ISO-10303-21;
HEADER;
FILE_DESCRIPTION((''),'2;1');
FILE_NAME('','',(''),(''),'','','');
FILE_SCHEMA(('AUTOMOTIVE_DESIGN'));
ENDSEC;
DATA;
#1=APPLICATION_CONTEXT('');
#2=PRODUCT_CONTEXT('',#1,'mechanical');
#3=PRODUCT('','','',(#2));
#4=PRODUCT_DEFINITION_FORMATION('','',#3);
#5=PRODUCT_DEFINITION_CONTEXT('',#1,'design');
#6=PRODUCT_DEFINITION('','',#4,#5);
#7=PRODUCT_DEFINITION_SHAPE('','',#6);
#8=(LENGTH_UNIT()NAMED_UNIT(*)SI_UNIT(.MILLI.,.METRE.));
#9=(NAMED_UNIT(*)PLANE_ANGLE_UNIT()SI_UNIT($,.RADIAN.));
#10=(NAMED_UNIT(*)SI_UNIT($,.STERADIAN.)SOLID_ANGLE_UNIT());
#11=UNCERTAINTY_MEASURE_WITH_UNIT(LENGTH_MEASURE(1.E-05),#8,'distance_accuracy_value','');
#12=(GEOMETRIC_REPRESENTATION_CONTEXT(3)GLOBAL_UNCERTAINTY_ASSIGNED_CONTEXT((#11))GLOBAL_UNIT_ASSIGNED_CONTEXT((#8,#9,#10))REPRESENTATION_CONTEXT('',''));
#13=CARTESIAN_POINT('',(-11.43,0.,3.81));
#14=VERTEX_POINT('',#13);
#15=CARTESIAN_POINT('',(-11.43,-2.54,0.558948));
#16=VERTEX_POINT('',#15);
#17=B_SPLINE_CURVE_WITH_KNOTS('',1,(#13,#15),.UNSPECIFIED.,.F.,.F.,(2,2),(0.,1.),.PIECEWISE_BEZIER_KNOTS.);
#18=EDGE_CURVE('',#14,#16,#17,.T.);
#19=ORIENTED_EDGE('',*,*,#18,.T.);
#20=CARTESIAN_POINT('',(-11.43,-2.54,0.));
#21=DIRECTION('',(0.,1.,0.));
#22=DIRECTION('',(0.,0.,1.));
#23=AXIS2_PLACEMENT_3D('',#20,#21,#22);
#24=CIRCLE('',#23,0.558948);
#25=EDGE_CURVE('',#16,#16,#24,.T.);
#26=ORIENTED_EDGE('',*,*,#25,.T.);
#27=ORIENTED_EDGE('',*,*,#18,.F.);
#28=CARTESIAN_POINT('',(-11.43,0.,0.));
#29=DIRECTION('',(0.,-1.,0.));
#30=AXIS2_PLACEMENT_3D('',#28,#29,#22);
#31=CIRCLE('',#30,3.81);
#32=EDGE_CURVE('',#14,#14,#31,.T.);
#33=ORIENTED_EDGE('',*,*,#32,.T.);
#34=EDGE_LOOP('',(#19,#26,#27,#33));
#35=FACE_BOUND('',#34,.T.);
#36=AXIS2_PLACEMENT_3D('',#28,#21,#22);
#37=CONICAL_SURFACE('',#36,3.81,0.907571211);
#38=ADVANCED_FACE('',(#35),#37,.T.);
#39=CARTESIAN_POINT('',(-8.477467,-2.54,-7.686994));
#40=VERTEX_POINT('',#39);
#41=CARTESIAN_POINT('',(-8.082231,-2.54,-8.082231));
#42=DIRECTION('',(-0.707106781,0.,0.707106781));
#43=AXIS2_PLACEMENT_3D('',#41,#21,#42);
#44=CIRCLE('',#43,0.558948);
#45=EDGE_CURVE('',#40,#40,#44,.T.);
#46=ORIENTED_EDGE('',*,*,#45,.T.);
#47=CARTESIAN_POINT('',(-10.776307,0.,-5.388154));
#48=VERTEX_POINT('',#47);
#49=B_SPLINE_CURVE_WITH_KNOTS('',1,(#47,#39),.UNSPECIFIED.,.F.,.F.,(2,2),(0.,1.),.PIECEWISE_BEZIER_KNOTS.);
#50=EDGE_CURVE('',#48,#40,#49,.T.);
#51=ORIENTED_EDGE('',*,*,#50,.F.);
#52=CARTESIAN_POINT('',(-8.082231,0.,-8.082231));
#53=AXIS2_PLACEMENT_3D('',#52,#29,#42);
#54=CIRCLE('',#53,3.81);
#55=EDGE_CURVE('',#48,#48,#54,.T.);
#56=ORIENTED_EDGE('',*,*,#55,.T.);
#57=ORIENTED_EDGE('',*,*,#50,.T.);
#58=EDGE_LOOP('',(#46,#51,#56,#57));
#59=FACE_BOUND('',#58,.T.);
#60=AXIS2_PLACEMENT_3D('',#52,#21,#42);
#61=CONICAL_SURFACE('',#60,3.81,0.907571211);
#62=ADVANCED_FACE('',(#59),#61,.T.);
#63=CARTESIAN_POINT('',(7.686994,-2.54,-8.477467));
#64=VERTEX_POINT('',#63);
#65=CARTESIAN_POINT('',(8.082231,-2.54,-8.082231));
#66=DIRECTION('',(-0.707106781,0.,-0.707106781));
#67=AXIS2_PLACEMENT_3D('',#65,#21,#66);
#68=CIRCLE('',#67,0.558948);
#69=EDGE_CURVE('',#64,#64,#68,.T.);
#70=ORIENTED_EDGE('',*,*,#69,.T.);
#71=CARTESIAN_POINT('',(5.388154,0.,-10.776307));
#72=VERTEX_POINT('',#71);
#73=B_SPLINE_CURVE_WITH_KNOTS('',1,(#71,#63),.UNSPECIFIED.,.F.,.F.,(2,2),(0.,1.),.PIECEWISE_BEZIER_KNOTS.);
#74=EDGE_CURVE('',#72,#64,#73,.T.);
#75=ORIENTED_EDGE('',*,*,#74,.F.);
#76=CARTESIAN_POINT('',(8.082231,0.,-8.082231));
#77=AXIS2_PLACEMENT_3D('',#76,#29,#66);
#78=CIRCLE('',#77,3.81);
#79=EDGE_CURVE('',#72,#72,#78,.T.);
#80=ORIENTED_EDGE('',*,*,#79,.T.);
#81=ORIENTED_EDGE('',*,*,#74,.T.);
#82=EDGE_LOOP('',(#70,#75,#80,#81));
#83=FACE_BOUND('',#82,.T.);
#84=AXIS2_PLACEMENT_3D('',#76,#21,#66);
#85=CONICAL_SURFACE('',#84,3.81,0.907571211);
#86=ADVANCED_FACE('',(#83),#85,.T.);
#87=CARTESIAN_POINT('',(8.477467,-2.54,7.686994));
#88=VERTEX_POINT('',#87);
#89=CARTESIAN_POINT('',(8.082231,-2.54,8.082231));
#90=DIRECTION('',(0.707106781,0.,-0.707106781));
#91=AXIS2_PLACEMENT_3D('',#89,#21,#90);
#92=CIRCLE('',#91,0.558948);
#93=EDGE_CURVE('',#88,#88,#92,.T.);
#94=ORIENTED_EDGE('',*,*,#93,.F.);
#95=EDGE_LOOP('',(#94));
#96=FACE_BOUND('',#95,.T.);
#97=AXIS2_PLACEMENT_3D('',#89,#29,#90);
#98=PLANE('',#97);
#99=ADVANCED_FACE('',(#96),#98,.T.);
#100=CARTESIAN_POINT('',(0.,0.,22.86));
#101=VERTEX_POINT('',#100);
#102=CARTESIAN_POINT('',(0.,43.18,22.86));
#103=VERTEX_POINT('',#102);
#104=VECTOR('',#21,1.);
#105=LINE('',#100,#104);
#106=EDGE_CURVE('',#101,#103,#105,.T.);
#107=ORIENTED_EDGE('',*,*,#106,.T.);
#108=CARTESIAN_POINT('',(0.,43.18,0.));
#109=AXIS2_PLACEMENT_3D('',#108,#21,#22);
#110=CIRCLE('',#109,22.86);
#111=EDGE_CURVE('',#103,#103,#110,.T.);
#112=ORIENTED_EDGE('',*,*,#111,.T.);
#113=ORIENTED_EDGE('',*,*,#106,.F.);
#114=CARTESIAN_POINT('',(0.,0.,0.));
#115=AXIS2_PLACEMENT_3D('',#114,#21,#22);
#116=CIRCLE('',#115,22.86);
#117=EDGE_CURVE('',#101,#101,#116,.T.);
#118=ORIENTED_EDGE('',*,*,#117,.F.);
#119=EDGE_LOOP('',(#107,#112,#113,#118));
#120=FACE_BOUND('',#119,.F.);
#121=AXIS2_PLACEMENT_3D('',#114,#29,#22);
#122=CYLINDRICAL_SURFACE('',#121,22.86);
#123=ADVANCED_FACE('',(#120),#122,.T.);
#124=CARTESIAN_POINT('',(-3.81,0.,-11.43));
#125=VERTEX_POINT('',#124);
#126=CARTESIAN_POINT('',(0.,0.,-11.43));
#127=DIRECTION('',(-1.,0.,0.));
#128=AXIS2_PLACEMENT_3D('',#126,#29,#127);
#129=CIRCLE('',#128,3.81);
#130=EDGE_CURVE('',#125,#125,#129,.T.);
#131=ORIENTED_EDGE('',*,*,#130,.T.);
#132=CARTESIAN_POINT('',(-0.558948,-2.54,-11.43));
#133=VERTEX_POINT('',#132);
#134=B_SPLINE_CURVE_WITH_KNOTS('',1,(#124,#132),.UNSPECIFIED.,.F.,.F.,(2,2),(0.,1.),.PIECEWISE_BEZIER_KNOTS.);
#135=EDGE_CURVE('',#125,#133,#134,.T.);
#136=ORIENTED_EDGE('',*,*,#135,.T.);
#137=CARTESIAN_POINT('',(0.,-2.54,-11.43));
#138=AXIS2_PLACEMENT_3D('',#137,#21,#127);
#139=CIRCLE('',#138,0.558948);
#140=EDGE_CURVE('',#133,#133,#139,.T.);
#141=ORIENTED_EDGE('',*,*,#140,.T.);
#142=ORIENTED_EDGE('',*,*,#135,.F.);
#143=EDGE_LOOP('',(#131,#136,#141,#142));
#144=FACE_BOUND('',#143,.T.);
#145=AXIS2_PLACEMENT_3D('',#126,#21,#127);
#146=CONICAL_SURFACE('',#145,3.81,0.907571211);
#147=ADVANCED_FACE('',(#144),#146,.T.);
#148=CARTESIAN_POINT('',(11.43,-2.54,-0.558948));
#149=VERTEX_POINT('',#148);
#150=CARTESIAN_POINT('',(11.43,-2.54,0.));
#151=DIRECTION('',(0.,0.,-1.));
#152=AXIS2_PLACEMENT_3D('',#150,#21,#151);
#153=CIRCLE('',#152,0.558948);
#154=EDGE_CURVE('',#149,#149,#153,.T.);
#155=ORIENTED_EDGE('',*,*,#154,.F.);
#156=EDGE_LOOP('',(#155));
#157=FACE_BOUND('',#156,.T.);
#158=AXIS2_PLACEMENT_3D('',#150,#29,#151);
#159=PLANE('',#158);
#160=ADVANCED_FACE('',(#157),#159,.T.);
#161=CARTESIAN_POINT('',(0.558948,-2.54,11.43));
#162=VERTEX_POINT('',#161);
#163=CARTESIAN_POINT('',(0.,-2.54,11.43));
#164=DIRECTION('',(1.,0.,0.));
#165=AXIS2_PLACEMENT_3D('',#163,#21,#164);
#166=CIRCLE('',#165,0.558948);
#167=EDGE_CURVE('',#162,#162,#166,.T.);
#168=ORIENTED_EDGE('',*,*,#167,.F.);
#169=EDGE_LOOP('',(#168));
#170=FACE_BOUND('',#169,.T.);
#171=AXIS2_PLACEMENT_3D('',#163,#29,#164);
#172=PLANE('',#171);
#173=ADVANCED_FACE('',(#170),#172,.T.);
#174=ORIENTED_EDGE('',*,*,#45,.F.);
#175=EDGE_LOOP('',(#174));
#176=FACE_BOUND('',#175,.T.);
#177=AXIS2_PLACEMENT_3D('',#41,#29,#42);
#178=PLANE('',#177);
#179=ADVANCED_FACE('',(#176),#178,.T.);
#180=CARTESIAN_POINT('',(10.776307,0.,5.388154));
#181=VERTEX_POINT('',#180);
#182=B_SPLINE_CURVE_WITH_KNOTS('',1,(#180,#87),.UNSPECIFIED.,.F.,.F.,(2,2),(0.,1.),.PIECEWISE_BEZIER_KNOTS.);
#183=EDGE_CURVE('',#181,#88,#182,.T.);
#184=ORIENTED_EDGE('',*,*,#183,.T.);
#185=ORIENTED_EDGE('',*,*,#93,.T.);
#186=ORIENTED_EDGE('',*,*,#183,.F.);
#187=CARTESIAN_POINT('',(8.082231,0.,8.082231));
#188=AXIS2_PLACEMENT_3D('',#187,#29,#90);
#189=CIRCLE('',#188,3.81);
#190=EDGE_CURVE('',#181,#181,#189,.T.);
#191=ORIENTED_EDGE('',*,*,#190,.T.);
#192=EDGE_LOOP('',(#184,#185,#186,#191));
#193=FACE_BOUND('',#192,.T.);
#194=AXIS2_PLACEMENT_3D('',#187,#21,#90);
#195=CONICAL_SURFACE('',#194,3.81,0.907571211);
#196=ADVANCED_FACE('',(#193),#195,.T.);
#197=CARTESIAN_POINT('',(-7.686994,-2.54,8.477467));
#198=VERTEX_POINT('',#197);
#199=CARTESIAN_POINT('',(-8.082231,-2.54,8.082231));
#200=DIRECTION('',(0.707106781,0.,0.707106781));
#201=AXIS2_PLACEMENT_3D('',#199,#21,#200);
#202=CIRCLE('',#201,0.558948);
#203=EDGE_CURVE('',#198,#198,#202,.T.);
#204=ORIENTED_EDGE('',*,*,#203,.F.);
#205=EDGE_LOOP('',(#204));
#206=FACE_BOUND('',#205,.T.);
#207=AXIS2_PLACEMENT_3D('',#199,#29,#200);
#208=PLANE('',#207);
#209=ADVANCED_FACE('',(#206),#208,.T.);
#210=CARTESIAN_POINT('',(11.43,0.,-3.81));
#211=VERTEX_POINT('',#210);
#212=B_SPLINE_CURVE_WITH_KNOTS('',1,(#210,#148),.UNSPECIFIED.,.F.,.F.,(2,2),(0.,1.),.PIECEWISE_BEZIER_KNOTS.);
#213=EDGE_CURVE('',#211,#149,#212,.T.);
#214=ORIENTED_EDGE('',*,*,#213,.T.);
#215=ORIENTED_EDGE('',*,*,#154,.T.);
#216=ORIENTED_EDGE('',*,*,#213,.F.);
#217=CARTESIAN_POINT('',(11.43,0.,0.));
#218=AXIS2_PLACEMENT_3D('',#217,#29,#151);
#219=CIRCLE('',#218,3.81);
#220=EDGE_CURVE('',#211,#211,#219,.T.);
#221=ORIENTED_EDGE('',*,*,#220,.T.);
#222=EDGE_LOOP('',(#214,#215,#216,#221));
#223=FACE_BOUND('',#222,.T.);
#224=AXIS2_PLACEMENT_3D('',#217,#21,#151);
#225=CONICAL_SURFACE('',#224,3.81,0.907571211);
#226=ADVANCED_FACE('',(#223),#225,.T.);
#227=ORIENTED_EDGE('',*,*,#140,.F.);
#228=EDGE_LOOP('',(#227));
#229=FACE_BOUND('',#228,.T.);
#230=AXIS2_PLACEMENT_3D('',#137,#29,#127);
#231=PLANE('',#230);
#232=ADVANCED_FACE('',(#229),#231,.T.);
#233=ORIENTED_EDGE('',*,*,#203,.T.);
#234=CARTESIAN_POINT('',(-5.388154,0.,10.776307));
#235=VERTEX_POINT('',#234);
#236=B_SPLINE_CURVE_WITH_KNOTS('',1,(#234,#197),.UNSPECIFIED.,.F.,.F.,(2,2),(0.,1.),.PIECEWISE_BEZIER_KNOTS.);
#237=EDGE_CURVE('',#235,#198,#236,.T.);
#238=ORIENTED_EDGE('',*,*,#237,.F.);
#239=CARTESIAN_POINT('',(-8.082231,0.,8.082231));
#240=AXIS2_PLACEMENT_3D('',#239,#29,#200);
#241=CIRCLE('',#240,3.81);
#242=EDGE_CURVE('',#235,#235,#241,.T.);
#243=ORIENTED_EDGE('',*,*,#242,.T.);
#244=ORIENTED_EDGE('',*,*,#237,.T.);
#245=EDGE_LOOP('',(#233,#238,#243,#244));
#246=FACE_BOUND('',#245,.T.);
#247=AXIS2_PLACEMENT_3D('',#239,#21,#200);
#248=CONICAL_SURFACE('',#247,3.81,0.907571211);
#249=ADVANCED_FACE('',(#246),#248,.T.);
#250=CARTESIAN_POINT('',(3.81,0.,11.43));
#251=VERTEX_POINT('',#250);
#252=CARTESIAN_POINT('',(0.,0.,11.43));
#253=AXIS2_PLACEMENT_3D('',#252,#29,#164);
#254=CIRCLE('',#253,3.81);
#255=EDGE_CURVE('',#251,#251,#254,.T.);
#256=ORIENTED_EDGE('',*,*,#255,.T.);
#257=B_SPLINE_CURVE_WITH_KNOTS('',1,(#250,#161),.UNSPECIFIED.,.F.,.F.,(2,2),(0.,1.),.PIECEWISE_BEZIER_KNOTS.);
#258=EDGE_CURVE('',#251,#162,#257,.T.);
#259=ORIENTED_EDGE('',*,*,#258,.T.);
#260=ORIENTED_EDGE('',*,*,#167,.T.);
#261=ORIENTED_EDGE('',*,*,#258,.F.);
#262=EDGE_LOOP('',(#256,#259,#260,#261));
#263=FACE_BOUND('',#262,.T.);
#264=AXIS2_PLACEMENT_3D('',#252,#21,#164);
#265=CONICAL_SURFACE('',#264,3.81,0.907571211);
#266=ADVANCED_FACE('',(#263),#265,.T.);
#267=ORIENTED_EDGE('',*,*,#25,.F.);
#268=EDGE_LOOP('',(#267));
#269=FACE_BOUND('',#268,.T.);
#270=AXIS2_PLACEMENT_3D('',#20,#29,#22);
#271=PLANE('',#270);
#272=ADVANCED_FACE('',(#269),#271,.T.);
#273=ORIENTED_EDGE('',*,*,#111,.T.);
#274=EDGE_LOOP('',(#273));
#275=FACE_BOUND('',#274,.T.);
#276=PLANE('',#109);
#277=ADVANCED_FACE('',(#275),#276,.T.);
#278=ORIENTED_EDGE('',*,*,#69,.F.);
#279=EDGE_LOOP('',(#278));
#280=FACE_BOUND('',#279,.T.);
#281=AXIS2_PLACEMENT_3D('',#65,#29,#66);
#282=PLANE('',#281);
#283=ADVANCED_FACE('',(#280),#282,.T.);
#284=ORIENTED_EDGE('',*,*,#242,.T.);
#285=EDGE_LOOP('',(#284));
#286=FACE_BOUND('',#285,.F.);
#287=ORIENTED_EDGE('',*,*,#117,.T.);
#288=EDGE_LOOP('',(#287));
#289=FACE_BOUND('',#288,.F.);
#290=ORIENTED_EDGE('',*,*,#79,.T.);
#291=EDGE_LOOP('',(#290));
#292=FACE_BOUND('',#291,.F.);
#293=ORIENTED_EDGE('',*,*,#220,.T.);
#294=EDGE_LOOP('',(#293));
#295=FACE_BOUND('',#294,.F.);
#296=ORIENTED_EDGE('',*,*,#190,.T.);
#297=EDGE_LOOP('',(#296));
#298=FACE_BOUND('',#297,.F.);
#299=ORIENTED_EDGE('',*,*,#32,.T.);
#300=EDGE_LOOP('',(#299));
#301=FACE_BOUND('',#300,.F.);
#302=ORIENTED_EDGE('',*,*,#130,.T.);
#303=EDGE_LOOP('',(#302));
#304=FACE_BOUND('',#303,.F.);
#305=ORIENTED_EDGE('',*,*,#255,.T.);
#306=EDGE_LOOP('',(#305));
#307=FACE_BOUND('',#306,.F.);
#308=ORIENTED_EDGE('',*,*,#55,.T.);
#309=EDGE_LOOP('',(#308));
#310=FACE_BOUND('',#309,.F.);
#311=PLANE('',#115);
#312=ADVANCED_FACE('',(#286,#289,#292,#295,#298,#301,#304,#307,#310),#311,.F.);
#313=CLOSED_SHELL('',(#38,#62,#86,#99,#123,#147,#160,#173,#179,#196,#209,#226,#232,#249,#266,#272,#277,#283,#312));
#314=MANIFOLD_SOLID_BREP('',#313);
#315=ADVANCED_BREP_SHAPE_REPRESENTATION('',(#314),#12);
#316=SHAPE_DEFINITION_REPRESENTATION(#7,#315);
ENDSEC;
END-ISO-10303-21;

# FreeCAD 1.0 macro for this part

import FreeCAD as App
import Part
import Sketcher
Q = App.Units.Quantity

doc = App.newDocument("Part")
params = doc.addObject("Spreadsheet::Sheet", "Params")
for row, (alias, value) in enumerate([
    ("sketch1_diameter", "1.8 in"),
    ("pad1_length", "1.7 in"),
    ("sketch2_diameter", "0.3 in"),
    ("pad2_length", "0.1 in"),
    ("pad2_taper", "-52 deg"),
], start=1):
    params.set(f"A{row}", alias)
    params.set(f"B{row}", "=" + value)
    params.setAlias(f"B{row}", alias)

body = doc.addObject("PartDesign::Body", "Body")

sketch1 = doc.addObject("Sketcher::SketchObject", "Sketch")
body.addObject(sketch1)
sketch1.AttachmentSupport = (doc.XZ_Plane, [""])
sketch1.MapMode = "FlatFace"
sketch1.addGeometry(Part.Circle(App.Vector(0, 0, 0), App.Vector(0, 0, 1), 23), False)
sketch1.addConstraint([
    Sketcher.Constraint("Coincident", 0, 3, -1, 1),
    Sketcher.Constraint("Diameter", 0, Q("1.8 in")),
])
sketch1.setExpression("Constraints[1]", "Params.sketch1_diameter")
pad1 = doc.addObject("PartDesign::Pad", "Pad")
body.addObject(pad1)
pad1.Profile = sketch1
pad1.setExpression("Length", "Params.pad1_length")
pad1.Reversed = True

sketch2 = doc.addObject("Sketcher::SketchObject", "Sketch001")
body.addObject(sketch2)
sketch2.AttachmentSupport = (doc.XZ_Plane, [""])
sketch2.MapMode = "FlatFace"
sketch2.addGeometry(Part.Circle(App.Vector(0, -11.4, 0), App.Vector(0, 0, 1), 3.8), False)
sketch2.addConstraint([
    Sketcher.Constraint("PointOnObject", 0, 3, -2),
    Sketcher.Constraint("Diameter", 0, Q("0.3 in")),
    Sketcher.Constraint("DistanceY", 0, 3, -1, 1, Q("0.45 in")),
])
sketch2.setExpression("Constraints[1]", "Params.sketch2_diameter")
pad2 = doc.addObject("PartDesign::Pad", "Pad001")
body.addObject(pad2)
pad2.Profile = sketch2
pad2.setExpression("Length", "Params.pad2_length")
pad2.setExpression("TaperAngle", "Params.pad2_taper")
doc.recompute()

polarpattern = doc.addObject("PartDesign::PolarPattern", "PolarPattern")
body.addObject(polarpattern)
polarpattern.Originals = [pad2]
polarpattern.Axis = (doc.Y_Axis, [""])
polarpattern.Angle = 360
polarpattern.Occurrences = 8
body.Tip = polarpattern

doc.recompute()
